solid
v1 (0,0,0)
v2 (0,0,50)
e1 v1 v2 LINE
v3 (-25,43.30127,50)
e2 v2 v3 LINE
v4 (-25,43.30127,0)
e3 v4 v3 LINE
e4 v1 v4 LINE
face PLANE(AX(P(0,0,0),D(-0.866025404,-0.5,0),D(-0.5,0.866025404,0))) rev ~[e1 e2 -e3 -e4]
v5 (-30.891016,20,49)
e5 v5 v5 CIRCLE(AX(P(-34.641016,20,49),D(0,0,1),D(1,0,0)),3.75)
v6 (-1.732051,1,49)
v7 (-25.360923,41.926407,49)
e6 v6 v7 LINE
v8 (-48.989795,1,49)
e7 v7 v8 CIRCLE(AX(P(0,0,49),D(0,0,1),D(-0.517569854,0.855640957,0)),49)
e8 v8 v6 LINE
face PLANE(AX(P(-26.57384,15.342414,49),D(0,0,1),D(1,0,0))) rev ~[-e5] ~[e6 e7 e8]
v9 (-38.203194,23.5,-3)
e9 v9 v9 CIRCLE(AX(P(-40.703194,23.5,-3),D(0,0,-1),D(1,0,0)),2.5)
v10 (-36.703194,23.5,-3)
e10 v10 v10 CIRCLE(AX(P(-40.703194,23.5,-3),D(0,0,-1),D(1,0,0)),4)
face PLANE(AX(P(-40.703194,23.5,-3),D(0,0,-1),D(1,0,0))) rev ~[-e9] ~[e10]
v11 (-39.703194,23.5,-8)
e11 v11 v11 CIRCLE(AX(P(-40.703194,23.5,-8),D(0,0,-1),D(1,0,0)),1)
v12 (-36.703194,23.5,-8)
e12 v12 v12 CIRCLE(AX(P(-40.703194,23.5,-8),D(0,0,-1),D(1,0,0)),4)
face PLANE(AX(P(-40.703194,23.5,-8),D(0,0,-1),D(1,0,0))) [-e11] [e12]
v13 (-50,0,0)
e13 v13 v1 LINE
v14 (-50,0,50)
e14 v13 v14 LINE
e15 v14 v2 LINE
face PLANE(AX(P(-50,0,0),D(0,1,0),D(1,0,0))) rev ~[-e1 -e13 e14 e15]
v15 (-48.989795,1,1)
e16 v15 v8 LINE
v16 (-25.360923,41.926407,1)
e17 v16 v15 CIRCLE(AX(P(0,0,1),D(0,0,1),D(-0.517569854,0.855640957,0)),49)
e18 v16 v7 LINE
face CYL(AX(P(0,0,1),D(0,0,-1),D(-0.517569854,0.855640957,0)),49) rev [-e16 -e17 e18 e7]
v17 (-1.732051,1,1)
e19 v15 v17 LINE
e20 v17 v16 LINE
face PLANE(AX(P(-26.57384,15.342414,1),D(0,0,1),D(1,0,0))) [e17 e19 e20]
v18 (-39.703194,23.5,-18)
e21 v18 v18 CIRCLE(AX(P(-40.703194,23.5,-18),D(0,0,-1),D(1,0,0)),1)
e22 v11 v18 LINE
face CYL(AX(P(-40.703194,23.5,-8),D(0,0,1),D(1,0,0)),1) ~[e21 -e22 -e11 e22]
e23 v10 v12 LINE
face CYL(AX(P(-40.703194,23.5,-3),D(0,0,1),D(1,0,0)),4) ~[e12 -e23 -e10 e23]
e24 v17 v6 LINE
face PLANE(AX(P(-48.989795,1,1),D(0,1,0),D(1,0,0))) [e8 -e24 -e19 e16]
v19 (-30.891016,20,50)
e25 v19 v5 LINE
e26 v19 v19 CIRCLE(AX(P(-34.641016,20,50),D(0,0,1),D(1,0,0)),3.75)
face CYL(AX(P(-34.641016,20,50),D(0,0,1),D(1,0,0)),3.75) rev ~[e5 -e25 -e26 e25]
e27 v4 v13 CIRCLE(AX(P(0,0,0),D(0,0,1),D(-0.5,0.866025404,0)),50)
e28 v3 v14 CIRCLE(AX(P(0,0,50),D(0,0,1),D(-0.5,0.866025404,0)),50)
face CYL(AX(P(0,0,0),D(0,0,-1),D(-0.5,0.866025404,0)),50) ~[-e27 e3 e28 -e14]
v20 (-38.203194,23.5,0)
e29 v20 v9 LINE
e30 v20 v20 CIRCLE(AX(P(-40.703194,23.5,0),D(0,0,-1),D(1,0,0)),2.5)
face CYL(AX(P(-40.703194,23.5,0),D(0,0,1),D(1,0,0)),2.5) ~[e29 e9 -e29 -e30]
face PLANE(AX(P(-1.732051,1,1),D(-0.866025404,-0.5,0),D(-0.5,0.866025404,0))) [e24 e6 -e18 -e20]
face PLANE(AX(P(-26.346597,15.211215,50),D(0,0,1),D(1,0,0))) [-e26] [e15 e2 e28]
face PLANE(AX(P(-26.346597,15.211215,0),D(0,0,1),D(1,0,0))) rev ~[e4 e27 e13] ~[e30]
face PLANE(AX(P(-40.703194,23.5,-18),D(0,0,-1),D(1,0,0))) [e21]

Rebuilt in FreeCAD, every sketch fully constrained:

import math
import FreeCAD as App
import Part
import Sketcher

V = App.Vector
Q = App.Units.Quantity

doc = App.newDocument("Part")
body = doc.addObject("PartDesign::Body", "Body")

sketch1 = doc.addObject("Sketcher::SketchObject", "Sketch")
body.addObject(sketch1)
sketch1.AttachmentSupport = (doc.XY_Plane, [""])
sketch1.MapMode = "FlatFace"
sketch1.addGeometry([
    Part.LineSegment(V(0, 0, 0), V(-25, 43, 0)),
    Part.ArcOfCircle(Part.Circle(V(0, 0, 0), V(0, 0, 1), 50), math.radians(120), math.radians(180)),
    Part.LineSegment(V(-50, 0, 0), V(0, 0, 0)),
], False)
sketch1.addConstraint([
    Sketcher.Constraint("Coincident", 0, 2, 1, 1),
    Sketcher.Constraint("Coincident", 1, 2, 2, 1),
    Sketcher.Constraint("Coincident", 2, 2, 0, 1),
    Sketcher.Constraint("Horizontal", 2),
    Sketcher.Constraint("Coincident", 1, 3, -1, 1),
    Sketcher.Constraint("Coincident", 2, 2, -1, 1),
    Sketcher.Constraint("Radius", 1, Q("50 mm")),
    Sketcher.Constraint("Angle", 0, Q("120 deg")),
])
pad1 = doc.addObject("PartDesign::Pad", "Pad")
body.addObject(pad1)
pad1.Profile = sketch1
pad1.Length = 50

sketch2 = doc.addObject("Sketcher::SketchObject", "Sketch001")
body.addObject(sketch2)
sketch2.AttachmentSupport = (doc.XY_Plane, [""])
sketch2.MapMode = "FlatFace"
sketch2.AttachmentOffset = App.Placement(V(0, 0, 1), App.Rotation())
sketch2.addGeometry([
    Part.LineSegment(V(-2, 1, 0), V(-25, 42, 0)),
    Part.ArcOfCircle(Part.Circle(V(0, 0, 0), V(0, 0, 1), 49), math.radians(121), math.radians(179)),
    Part.LineSegment(V(-49, 1, 0), V(-2, 1, 0)),
], False)
sketch2.addConstraint([
    Sketcher.Constraint("Coincident", 0, 2, 1, 1),
    Sketcher.Constraint("Coincident", 1, 2, 2, 1),
    Sketcher.Constraint("Coincident", 2, 2, 0, 1),
    Sketcher.Constraint("Horizontal", 2),
    Sketcher.Constraint("Coincident", 1, 3, -1, 1),
    Sketcher.Constraint("Radius", 1, Q("49 mm")),
    Sketcher.Constraint("Angle", 0, Q("120 deg")),
    Sketcher.Constraint("DistanceY", -1, 1, 1, 2, Q("1 mm")),
    Sketcher.Constraint("DistanceX", 2, 1, 2, 2, Q("47.257744 mm")),
])
pocket1 = doc.addObject("PartDesign::Pocket", "Pocket")
body.addObject(pocket1)
pocket1.Profile = sketch2
pocket1.Length = 48
pocket1.Reversed = True

sketch3 = doc.addObject("Sketcher::SketchObject", "Sketch002")
body.addObject(sketch3)
sketch3.AttachmentSupport = (doc.XY_Plane, [""])
sketch3.MapMode = "FlatFace"
sketch3.addGeometry(Part.Circle(V(-40.7, 23.5, 0), V(0, 0, 1), 2.5), False)
sketch3.addConstraint([
    Sketcher.Constraint("Diameter", 0, Q("5 mm")),
    Sketcher.Constraint("DistanceY", -1, 1, 0, 3, Q("23.5 mm")),
    Sketcher.Constraint("DistanceX", 0, 3, -1, 1, Q("40.703194 mm")),
])
pad2 = doc.addObject("PartDesign::Pad", "Pad001")
body.addObject(pad2)
pad2.Profile = sketch3
pad2.Length = 3
pad2.Reversed = True

sketch4 = doc.addObject("Sketcher::SketchObject", "Sketch003")
body.addObject(sketch4)
sketch4.AttachmentSupport = (doc.XY_Plane, [""])
sketch4.MapMode = "FlatFace"
sketch4.AttachmentOffset = App.Placement(V(0, 0, -3), App.Rotation())
sketch4.addGeometry(Part.Circle(V(-40.7, 23.5, 0), V(0, 0, 1), 4), False)
sketch4.addConstraint([
    Sketcher.Constraint("Diameter", 0, Q("8 mm")),
    Sketcher.Constraint("DistanceY", -1, 1, 0, 3, Q("23.5 mm")),
    Sketcher.Constraint("DistanceX", 0, 3, -1, 1, Q("40.703194 mm")),
])
pad3 = doc.addObject("PartDesign::Pad", "Pad002")
body.addObject(pad3)
pad3.Profile = sketch4
pad3.Length = 5
pad3.Reversed = True

sketch5 = doc.addObject("Sketcher::SketchObject", "Sketch004")
body.addObject(sketch5)
sketch5.AttachmentSupport = (doc.XY_Plane, [""])
sketch5.MapMode = "FlatFace"
sketch5.AttachmentOffset = App.Placement(V(0, 0, -8), App.Rotation())
sketch5.addGeometry(Part.Circle(V(-40.7, 23.5, 0), V(0, 0, 1), 1), False)
sketch5.addConstraint([
    Sketcher.Constraint("Diameter", 0, Q("2 mm")),
    Sketcher.Constraint("DistanceY", -1, 1, 0, 3, Q("23.5 mm")),
    Sketcher.Constraint("DistanceX", 0, 3, -1, 1, Q("40.703194 mm")),
])
pad4 = doc.addObject("PartDesign::Pad", "Pad003")
body.addObject(pad4)
pad4.Profile = sketch5
pad4.Length = 10
pad4.Reversed = True

sketch6 = doc.addObject("Sketcher::SketchObject", "Sketch005")
body.addObject(sketch6)
sketch6.AttachmentSupport = (doc.XY_Plane, [""])
sketch6.MapMode = "FlatFace"
sketch6.AttachmentOffset = App.Placement(V(0, 0, 50), App.Rotation())
sketch6.addGeometry(Part.Circle(V(-34.6, 20, 0), V(0, 0, 1), 3.8), False)
sketch6.addConstraint([
    Sketcher.Constraint("Diameter", 0, Q("7.5 mm")),
    Sketcher.Constraint("DistanceY", -1, 1, 0, 3, Q("20 mm")),
    Sketcher.Constraint("DistanceX", 0, 3, -1, 1, Q("34.641016 mm")),
])
pocket2 = doc.addObject("PartDesign::Pocket", "Pocket001")
body.addObject(pocket2)
pocket2.Profile = sketch6
pocket2.Length = 2

doc.recompute()
